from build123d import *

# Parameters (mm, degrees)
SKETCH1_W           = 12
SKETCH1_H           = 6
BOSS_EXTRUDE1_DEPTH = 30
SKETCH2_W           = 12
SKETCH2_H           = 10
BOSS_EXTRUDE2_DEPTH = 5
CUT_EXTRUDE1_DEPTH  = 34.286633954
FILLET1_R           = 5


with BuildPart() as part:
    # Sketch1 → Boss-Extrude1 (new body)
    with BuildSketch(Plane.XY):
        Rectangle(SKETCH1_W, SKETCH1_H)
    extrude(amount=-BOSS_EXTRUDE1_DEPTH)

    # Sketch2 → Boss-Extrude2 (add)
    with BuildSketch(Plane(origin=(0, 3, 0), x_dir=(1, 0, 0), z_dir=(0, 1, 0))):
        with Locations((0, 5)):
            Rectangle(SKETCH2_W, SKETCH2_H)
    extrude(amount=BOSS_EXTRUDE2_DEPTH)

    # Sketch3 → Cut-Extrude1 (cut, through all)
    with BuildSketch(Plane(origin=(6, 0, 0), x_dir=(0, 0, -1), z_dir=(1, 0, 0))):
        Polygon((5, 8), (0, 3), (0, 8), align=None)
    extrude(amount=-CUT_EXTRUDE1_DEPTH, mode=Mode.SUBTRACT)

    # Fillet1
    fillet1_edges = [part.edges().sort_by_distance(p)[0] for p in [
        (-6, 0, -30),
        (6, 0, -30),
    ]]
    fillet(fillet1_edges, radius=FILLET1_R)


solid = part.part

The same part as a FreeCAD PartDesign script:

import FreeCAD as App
import Part
import Sketcher
Q = App.Units.Quantity


def edges_at(feature, points):
    """Names of the edges that pass closest to the given points."""
    edges = feature.Shape.Edges
    near = lambda p: min(range(len(edges)), key=lambda i: edges[i].distToShape(Part.Vertex(*p))[0])
    return sorted({f"Edge{near(p) + 1}" for p in points})

doc = App.newDocument("Part")
body = doc.addObject("PartDesign::Body", "Body")

# Sketch on XY plane
sketch1 = body.newObject("Sketcher::SketchObject", "Sketch")
sketch1.AttachmentSupport = (doc.getObject("XY_Plane"), [""])
sketch1.MapMode = "FlatFace"
sketch1.addGeometry([
    Part.LineSegment(App.Vector(-6, 3, 0), App.Vector(-6, -3, 0)),
    Part.LineSegment(App.Vector(-6, -3, 0), App.Vector(6, -3, 0)),
    Part.LineSegment(App.Vector(6, -3, 0), App.Vector(6, 3, 0)),
    Part.LineSegment(App.Vector(6, 3, 0), App.Vector(-6, 3, 0)),
], False)
sketch1.addConstraint([
    Sketcher.Constraint("Coincident", 0, 2, 1, 1),
    Sketcher.Constraint("Coincident", 1, 2, 2, 1),
    Sketcher.Constraint("Coincident", 2, 2, 3, 1),
    Sketcher.Constraint("Coincident", 3, 2, 0, 1),
    Sketcher.Constraint("Vertical", 0),
    Sketcher.Constraint("Horizontal", 1),
    Sketcher.Constraint("Vertical", 2),
    Sketcher.Constraint("Horizontal", 3),
    Sketcher.Constraint("Symmetric", 0, 2, 2, 2, -1, 1),
    Sketcher.Constraint("DistanceX", 1, 1, 1, 2, Q("12 mm")),
    Sketcher.Constraint("DistanceY", 0, 2, 0, 1, Q("6 mm")),
])
pad1 = body.newObject("PartDesign::Pad", "Pad")
pad1.Profile = sketch1
pad1.Length = 30
pad1.Reversed = True

# Sketch on XZ plane
sketch2 = body.newObject("Sketcher::SketchObject", "Sketch001")
sketch2.AttachmentSupport = (doc.getObject("XZ_Plane"), [""])
sketch2.MapMode = "FlatFace"
sketch2.AttachmentOffset = App.Placement(App.Vector(0, 0, -3), App.Rotation())
sketch2.addGeometry([
    Part.LineSegment(App.Vector(-6, -10, 0), App.Vector(-6, 0, 0)),
    Part.LineSegment(App.Vector(-6, 0, 0), App.Vector(6, 0, 0)),
    Part.LineSegment(App.Vector(6, 0, 0), App.Vector(6, -10, 0)),
    Part.LineSegment(App.Vector(6, -10, 0), App.Vector(-6, -10, 0)),
], False)
sketch2.addConstraint([
    Sketcher.Constraint("Coincident", 0, 2, 1, 1),
    Sketcher.Constraint("Coincident", 1, 2, 2, 1),
    Sketcher.Constraint("Coincident", 2, 2, 3, 1),
    Sketcher.Constraint("Coincident", 3, 2, 0, 1),
    Sketcher.Constraint("Vertical", 0),
    Sketcher.Constraint("Horizontal", 1),
    Sketcher.Constraint("Vertical", 2),
    Sketcher.Constraint("Horizontal", 3),
    Sketcher.Constraint("Symmetric", 0, 2, 1, 2, -1, 1),
    Sketcher.Constraint("DistanceX", 1, 1, 1, 2, Q("12 mm")),
    Sketcher.Constraint("DistanceY", 0, 1, 0, 2, Q("10 mm")),
])
pad2 = body.newObject("PartDesign::Pad", "Pad001")
pad2.Profile = sketch2
pad2.Length = 5
pad2.Reversed = True

# Sketch on YZ plane
sketch3 = body.newObject("Sketcher::SketchObject", "Sketch002")
sketch3.AttachmentSupport = (doc.getObject("YZ_Plane"), [""])
sketch3.MapMode = "FlatFace"
sketch3.AttachmentOffset = App.Placement(App.Vector(0, 0, 6), App.Rotation())
sketch3.addGeometry([
    Part.LineSegment(App.Vector(3, 0, 0), App.Vector(8, -5, 0)),
    Part.LineSegment(App.Vector(8, -5, 0), App.Vector(8, 0, 0)),
    Part.LineSegment(App.Vector(8, 0, 0), App.Vector(3, 0, 0)),
], False)
sketch3.addConstraint([
    Sketcher.Constraint("Coincident", 0, 2, 1, 1),
    Sketcher.Constraint("Coincident", 1, 2, 2, 1),
    Sketcher.Constraint("Coincident", 2, 2, 0, 1),
    Sketcher.Constraint("Vertical", 1),
    Sketcher.Constraint("Horizontal", 2),
    Sketcher.Constraint("PointOnObject", 1, 2, -1),
    Sketcher.Constraint("Equal", 2, 1),
    Sketcher.Constraint("DistanceX", 2, 2, 2, 1, Q("5 mm")),
    Sketcher.Constraint("DistanceX", -1, 1, 0, 2, Q("8 mm")),
])
pocket1 = body.newObject("PartDesign::Pocket", "Pocket")
pocket1.Profile = sketch3
pocket1.Type = "ThroughAll"
doc.recompute()

fillet = body.newObject("PartDesign::Fillet", "Fillet")
fillet.Base = (pocket1, edges_at(pocket1, [(-6, 0, -30), (6, 0, -30)]))
fillet.Radius = 5

doc.recompute()
